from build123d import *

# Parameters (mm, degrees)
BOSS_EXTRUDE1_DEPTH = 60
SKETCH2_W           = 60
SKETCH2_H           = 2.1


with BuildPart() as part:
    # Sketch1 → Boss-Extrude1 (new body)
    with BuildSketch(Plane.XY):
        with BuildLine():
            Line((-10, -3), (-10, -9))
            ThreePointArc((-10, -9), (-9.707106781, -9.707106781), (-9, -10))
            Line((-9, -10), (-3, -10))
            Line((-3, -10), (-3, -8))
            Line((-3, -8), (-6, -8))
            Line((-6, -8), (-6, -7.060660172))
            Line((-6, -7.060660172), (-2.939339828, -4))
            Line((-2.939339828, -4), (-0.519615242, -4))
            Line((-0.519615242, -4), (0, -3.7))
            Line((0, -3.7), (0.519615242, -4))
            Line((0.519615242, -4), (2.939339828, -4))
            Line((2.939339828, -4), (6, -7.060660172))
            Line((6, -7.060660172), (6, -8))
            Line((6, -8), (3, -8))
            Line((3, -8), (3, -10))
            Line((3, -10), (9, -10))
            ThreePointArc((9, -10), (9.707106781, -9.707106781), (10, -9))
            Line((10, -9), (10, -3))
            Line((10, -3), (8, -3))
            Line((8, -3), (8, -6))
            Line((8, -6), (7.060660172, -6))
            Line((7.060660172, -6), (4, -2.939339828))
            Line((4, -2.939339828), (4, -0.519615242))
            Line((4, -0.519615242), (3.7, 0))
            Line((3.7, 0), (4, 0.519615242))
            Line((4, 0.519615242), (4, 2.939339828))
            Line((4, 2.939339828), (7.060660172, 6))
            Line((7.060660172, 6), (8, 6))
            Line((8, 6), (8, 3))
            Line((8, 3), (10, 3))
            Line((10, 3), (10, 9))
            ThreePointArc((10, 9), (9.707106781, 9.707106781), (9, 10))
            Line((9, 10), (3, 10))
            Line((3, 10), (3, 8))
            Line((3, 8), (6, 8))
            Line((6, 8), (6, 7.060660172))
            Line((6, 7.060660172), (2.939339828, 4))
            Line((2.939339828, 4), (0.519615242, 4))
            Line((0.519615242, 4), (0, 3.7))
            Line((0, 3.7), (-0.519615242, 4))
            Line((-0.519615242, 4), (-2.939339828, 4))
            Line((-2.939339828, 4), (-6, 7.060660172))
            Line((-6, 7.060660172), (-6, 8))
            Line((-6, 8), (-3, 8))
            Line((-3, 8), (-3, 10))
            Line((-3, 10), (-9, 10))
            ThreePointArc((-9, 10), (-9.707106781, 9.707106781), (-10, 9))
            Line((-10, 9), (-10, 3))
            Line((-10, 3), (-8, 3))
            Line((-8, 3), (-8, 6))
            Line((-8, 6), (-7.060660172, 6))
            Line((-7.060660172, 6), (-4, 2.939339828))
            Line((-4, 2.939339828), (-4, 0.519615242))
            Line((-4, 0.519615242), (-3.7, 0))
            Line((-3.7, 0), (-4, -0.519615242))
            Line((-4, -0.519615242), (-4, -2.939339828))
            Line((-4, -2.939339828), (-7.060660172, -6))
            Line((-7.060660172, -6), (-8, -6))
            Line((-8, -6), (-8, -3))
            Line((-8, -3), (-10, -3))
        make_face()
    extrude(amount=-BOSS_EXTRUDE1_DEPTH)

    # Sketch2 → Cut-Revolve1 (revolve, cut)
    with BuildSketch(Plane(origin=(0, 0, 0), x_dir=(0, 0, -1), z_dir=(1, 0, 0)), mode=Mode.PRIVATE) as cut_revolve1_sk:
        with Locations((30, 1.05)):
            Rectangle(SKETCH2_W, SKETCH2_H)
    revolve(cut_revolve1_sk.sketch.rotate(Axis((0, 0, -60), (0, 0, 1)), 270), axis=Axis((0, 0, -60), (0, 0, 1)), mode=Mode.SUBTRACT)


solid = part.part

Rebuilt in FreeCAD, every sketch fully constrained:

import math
import FreeCAD as App
import Part
import Sketcher

V = App.Vector
Q = App.Units.Quantity

doc = App.newDocument("Part")
body = doc.addObject("PartDesign::Body", "Body")

# Sketch on XY plane
sketch1 = body.newObject("Sketcher::SketchObject", "Sketch")
sketch1.AttachmentSupport = (doc.getObject("XY_Plane"), [""])
sketch1.MapMode = "FlatFace"
sketch1.addGeometry(Part.LineSegment(V(-10, -3, 0), V(-10, -9, 0)), False)
sketch1.addGeometry(Part.ArcOfCircle(Part.Circle(V(-9, -9, 0), V(0, 0, 1), 1), math.radians(-180), math.radians(-90)), False)
sketch1.addGeometry(Part.LineSegment(V(-9, -10, 0), V(-3, -10, 0)), False)
sketch1.addGeometry(Part.LineSegment(V(-3, -10, 0), V(-3, -8, 0)), False)
sketch1.addGeometry(Part.LineSegment(V(-3, -8, 0), V(-6, -8, 0)), False)
sketch1.addGeometry(Part.LineSegment(V(-6, -8, 0), V(-6, -7.1, 0)), False)
sketch1.addGeometry(Part.LineSegment(V(-6, -7.1, 0), V(-2.9, -4, 0)), False)
sketch1.addGeometry(Part.LineSegment(V(-2.9, -4, 0), V(-0.5, -4, 0)), False)
sketch1.addGeometry(Part.LineSegment(V(-0.5, -4, 0), V(0, -3.7, 0)), False)
sketch1.addGeometry(Part.LineSegment(V(0, -3.7, 0), V(0.5, -4, 0)), False)
sketch1.addGeometry(Part.LineSegment(V(0.5, -4, 0), V(2.9, -4, 0)), False)
sketch1.addGeometry(Part.LineSegment(V(2.9, -4, 0), V(6, -7.1, 0)), False)
sketch1.addGeometry(Part.LineSegment(V(6, -7.1, 0), V(6, -8, 0)), False)
sketch1.addGeometry(Part.LineSegment(V(6, -8, 0), V(3, -8, 0)), False)
sketch1.addGeometry(Part.LineSegment(V(3, -8, 0), V(3, -10, 0)), False)
sketch1.addGeometry(Part.LineSegment(V(3, -10, 0), V(9, -10, 0)), False)
sketch1.addGeometry(Part.ArcOfCircle(Part.Circle(V(9, -9, 0), V(0, 0, 1), 1), math.radians(-90), math.radians(0)), False)
sketch1.addGeometry(Part.LineSegment(V(10, -9, 0), V(10, -3, 0)), False)
sketch1.addGeometry(Part.LineSegment(V(10, -3, 0), V(8, -3, 0)), False)
sketch1.addGeometry(Part.LineSegment(V(8, -3, 0), V(8, -6, 0)), False)
sketch1.addGeometry(Part.LineSegment(V(8, -6, 0), V(7.1, -6, 0)), False)
sketch1.addGeometry(Part.LineSegment(V(7.1, -6, 0), V(4, -2.9, 0)), False)
sketch1.addGeometry(Part.LineSegment(V(4, -2.9, 0), V(4, -0.5, 0)), False)
sketch1.addGeometry(Part.LineSegment(V(4, -0.5, 0), V(3.7, 0, 0)), False)
sketch1.addGeometry(Part.LineSegment(V(3.7, 0, 0), V(4, 0.5, 0)), False)
sketch1.addGeometry(Part.LineSegment(V(4, 0.5, 0), V(4, 2.9, 0)), False)
sketch1.addGeometry(Part.LineSegment(V(4, 2.9, 0), V(7.1, 6, 0)), False)
sketch1.addGeometry(Part.LineSegment(V(7.1, 6, 0), V(8, 6, 0)), False)
sketch1.addGeometry(Part.LineSegment(V(8, 6, 0), V(8, 3, 0)), False)
sketch1.addGeometry(Part.LineSegment(V(8, 3, 0), V(10, 3, 0)), False)
sketch1.addGeometry(Part.LineSegment(V(10, 3, 0), V(10, 9, 0)), False)
sketch1.addGeometry(Part.ArcOfCircle(Part.Circle(V(9, 9, 0), V(0, 0, 1), 1), math.radians(0), math.radians(90)), False)
sketch1.addGeometry(Part.LineSegment(V(9, 10, 0), V(3, 10, 0)), False)
sketch1.addGeometry(Part.LineSegment(V(3, 10, 0), V(3, 8, 0)), False)
sketch1.addGeometry(Part.LineSegment(V(3, 8, 0), V(6, 8, 0)), False)
sketch1.addGeometry(Part.LineSegment(V(6, 8, 0), V(6, 7.1, 0)), False)
sketch1.addGeometry(Part.LineSegment(V(6, 7.1, 0), V(2.9, 4, 0)), False)
sketch1.addGeometry(Part.LineSegment(V(2.9, 4, 0), V(0.5, 4, 0)), False)
sketch1.addGeometry(Part.LineSegment(V(0.5, 4, 0), V(0, 3.7, 0)), False)
sketch1.addGeometry(Part.LineSegment(V(0, 3.7, 0), V(-0.5, 4, 0)), False)
sketch1.addGeometry(Part.LineSegment(V(-0.5, 4, 0), V(-2.9, 4, 0)), False)
sketch1.addGeometry(Part.LineSegment(V(-2.9, 4, 0), V(-6, 7.1, 0)), False)
sketch1.addGeometry(Part.LineSegment(V(-6, 7.1, 0), V(-6, 8, 0)), False)
sketch1.addGeometry(Part.LineSegment(V(-6, 8, 0), V(-3, 8, 0)), False)
sketch1.addGeometry(Part.LineSegment(V(-3, 8, 0), V(-3, 10, 0)), False)
sketch1.addGeometry(Part.LineSegment(V(-3, 10, 0), V(-9, 10, 0)), False)
sketch1.addGeometry(Part.ArcOfCircle(Part.Circle(V(-9, 9, 0), V(0, 0, 1), 1), math.radians(90), math.radians(180)), False)
sketch1.addGeometry(Part.LineSegment(V(-10, 9, 0), V(-10, 3, 0)), False)
sketch1.addGeometry(Part.LineSegment(V(-10, 3, 0), V(-8, 3, 0)), False)
sketch1.addGeometry(Part.LineSegment(V(-8, 3, 0), V(-8, 6, 0)), False)
sketch1.addGeometry(Part.LineSegment(V(-8, 6, 0), V(-7.1, 6, 0)), False)
sketch1.addGeometry(Part.LineSegment(V(-7.1, 6, 0), V(-4, 2.9, 0)), False)
sketch1.addGeometry(Part.LineSegment(V(-4, 2.9, 0), V(-4, 0.5, 0)), False)
sketch1.addGeometry(Part.LineSegment(V(-4, 0.5, 0), V(-3.7, 0, 0)), False)
sketch1.addGeometry(Part.LineSegment(V(-3.7, 0, 0), V(-4, -0.5, 0)), False)
sketch1.addGeometry(Part.LineSegment(V(-4, -0.5, 0), V(-4, -2.9, 0)), False)
sketch1.addGeometry(Part.LineSegment(V(-4, -2.9, 0), V(-7.1, -6, 0)), False)
sketch1.addGeometry(Part.LineSegment(V(-7.1, -6, 0), V(-8, -6, 0)), False)
sketch1.addGeometry(Part.LineSegment(V(-8, -6, 0), V(-8, -3, 0)), False)
sketch1.addGeometry(Part.LineSegment(V(-8, -3, 0), V(-10, -3, 0)), False)
sketch1.addConstraint(Sketcher.Constraint("Tangent", 0, 2, 1, 1))
sketch1.addConstraint(Sketcher.Constraint("Tangent", 1, 2, 2, 1))
sketch1.addConstraint(Sketcher.Constraint("Coincident", 2, 2, 3, 1))
sketch1.addConstraint(Sketcher.Constraint("Coincident", 3, 2, 4, 1))
sketch1.addConstraint(Sketcher.Constraint("Coincident", 4, 2, 5, 1))
sketch1.addConstraint(Sketcher.Constraint("Coincident", 5, 2, 6, 1))
sketch1.addConstraint(Sketcher.Constraint("Coincident", 6, 2, 7, 1))
sketch1.addConstraint(Sketcher.Constraint("Coincident", 7, 2, 8, 1))
sketch1.addConstraint(Sketcher.Constraint("Coincident", 8, 2, 9, 1))
sketch1.addConstraint(Sketcher.Constraint("Coincident", 9, 2, 10, 1))
sketch1.addConstraint(Sketcher.Constraint("Coincident", 10, 2, 11, 1))
sketch1.addConstraint(Sketcher.Constraint("Coincident", 11, 2, 12, 1))
sketch1.addConstraint(Sketcher.Constraint("Coincident", 12, 2, 13, 1))
sketch1.addConstraint(Sketcher.Constraint("Coincident", 13, 2, 14, 1))
sketch1.addConstraint(Sketcher.Constraint("Coincident", 14, 2, 15, 1))
sketch1.addConstraint(Sketcher.Constraint("Tangent", 15, 2, 16, 1))
sketch1.addConstraint(Sketcher.Constraint("Tangent", 16, 2, 17, 1))
sketch1.addConstraint(Sketcher.Constraint("Coincident", 17, 2, 18, 1))
sketch1.addConstraint(Sketcher.Constraint("Coincident", 18, 2, 19, 1))
sketch1.addConstraint(Sketcher.Constraint("Coincident", 19, 2, 20, 1))
sketch1.addConstraint(Sketcher.Constraint("Coincident", 20, 2, 21, 1))
sketch1.addConstraint(Sketcher.Constraint("Coincident", 21, 2, 22, 1))
sketch1.addConstraint(Sketcher.Constraint("Coincident", 22, 2, 23, 1))
sketch1.addConstraint(Sketcher.Constraint("Coincident", 23, 2, 24, 1))
sketch1.addConstraint(Sketcher.Constraint("Coincident", 24, 2, 25, 1))
sketch1.addConstraint(Sketcher.Constraint("Coincident", 25, 2, 26, 1))
sketch1.addConstraint(Sketcher.Constraint("Coincident", 26, 2, 27, 1))
sketch1.addConstraint(Sketcher.Constraint("Coincident", 27, 2, 28, 1))
sketch1.addConstraint(Sketcher.Constraint("Coincident", 28, 2, 29, 1))
sketch1.addConstraint(Sketcher.Constraint("Coincident", 29, 2, 30, 1))
sketch1.addConstraint(Sketcher.Constraint("Tangent", 30, 2, 31, 1))
sketch1.addConstraint(Sketcher.Constraint("Tangent", 31, 2, 32, 1))
sketch1.addConstraint(Sketcher.Constraint("Coincident", 32, 2, 33, 1))
sketch1.addConstraint(Sketcher.Constraint("Coincident", 33, 2, 34, 1))
sketch1.addConstraint(Sketcher.Constraint("Coincident", 34, 2, 35, 1))
sketch1.addConstraint(Sketcher.Constraint("Coincident", 35, 2, 36, 1))
sketch1.addConstraint(Sketcher.Constraint("Coincident", 36, 2, 37, 1))
sketch1.addConstraint(Sketcher.Constraint("Coincident", 37, 2, 38, 1))
sketch1.addConstraint(Sketcher.Constraint("Coincident", 38, 2, 39, 1))
sketch1.addConstraint(Sketcher.Constraint("Coincident", 39, 2, 40, 1))
sketch1.addConstraint(Sketcher.Constraint("Coincident", 40, 2, 41, 1))
sketch1.addConstraint(Sketcher.Constraint("Coincident", 41, 2, 42, 1))
sketch1.addConstraint(Sketcher.Constraint("Coincident", 42, 2, 43, 1))
sketch1.addConstraint(Sketcher.Constraint("Coincident", 43, 2, 44, 1))
sketch1.addConstraint(Sketcher.Constraint("Coincident", 44, 2, 45, 1))
sketch1.addConstraint(Sketcher.Constraint("Tangent", 45, 2, 46, 1))
sketch1.addConstraint(Sketcher.Constraint("Tangent", 46, 2, 47, 1))
sketch1.addConstraint(Sketcher.Constraint("Coincident", 47, 2, 48, 1))
sketch1.addConstraint(Sketcher.Constraint("Coincident", 48, 2, 49, 1))
sketch1.addConstraint(Sketcher.Constraint("Coincident", 49, 2, 50, 1))
sketch1.addConstraint(Sketcher.Constraint("Coincident", 50, 2, 51, 1))
sketch1.addConstraint(Sketcher.Constraint("Coincident", 51, 2, 52, 1))
sketch1.addConstraint(Sketcher.Constraint("Coincident", 52, 2, 53, 1))
sketch1.addConstraint(Sketcher.Constraint("Coincident", 53, 2, 54, 1))
sketch1.addConstraint(Sketcher.Constraint("Coincident", 54, 2, 55, 1))
sketch1.addConstraint(Sketcher.Constraint("Coincident", 55, 2, 56, 1))
sketch1.addConstraint(Sketcher.Constraint("Coincident", 56, 2, 57, 1))
sketch1.addConstraint(Sketcher.Constraint("Coincident", 57, 2, 58, 1))
sketch1.addConstraint(Sketcher.Constraint("Coincident", 58, 2, 59, 1))
sketch1.addConstraint(Sketcher.Constraint("Coincident", 59, 2, 0, 1))
sketch1.addConstraint(Sketcher.Constraint("Vertical", 0))
sketch1.addConstraint(Sketcher.Constraint("Horizontal", 2))
sketch1.addConstraint(Sketcher.Constraint("Vertical", 3))
sketch1.addConstraint(Sketcher.Constraint("Horizontal", 4))
sketch1.addConstraint(Sketcher.Constraint("Vertical", 5))
sketch1.addConstraint(Sketcher.Constraint("Horizontal", 7))
sketch1.addConstraint(Sketcher.Constraint("Horizontal", 10))
sketch1.addConstraint(Sketcher.Constraint("Vertical", 12))
sketch1.addConstraint(Sketcher.Constraint("Horizontal", 13))
sketch1.addConstraint(Sketcher.Constraint("Vertical", 14))
sketch1.addConstraint(Sketcher.Constraint("Horizontal", 15))
sketch1.addConstraint(Sketcher.Constraint("Vertical", 17))
sketch1.addConstraint(Sketcher.Constraint("Horizontal", 18))
sketch1.addConstraint(Sketcher.Constraint("Vertical", 19))
sketch1.addConstraint(Sketcher.Constraint("Horizontal", 20))
sketch1.addConstraint(Sketcher.Constraint("Vertical", 22))
sketch1.addConstraint(Sketcher.Constraint("Vertical", 25))
sketch1.addConstraint(Sketcher.Constraint("Horizontal", 27))
sketch1.addConstraint(Sketcher.Constraint("Vertical", 28))
sketch1.addConstraint(Sketcher.Constraint("Horizontal", 29))
sketch1.addConstraint(Sketcher.Constraint("Vertical", 30))
sketch1.addConstraint(Sketcher.Constraint("Horizontal", 32))
sketch1.addConstraint(Sketcher.Constraint("Vertical", 33))
sketch1.addConstraint(Sketcher.Constraint("Horizontal", 34))
sketch1.addConstraint(Sketcher.Constraint("Vertical", 35))
sketch1.addConstraint(Sketcher.Constraint("Horizontal", 37))
sketch1.addConstraint(Sketcher.Constraint("Horizontal", 40))
sketch1.addConstraint(Sketcher.Constraint("Vertical", 42))
sketch1.addConstraint(Sketcher.Constraint("Horizontal", 43))
sketch1.addConstraint(Sketcher.Constraint("Vertical", 44))
sketch1.addConstraint(Sketcher.Constraint("Horizontal", 45))
sketch1.addConstraint(Sketcher.Constraint("Vertical", 47))
sketch1.addConstraint(Sketcher.Constraint("Horizontal", 48))
sketch1.addConstraint(Sketcher.Constraint("Vertical", 49))
sketch1.addConstraint(Sketcher.Constraint("Horizontal", 50))
sketch1.addConstraint(Sketcher.Constraint("Vertical", 52))
sketch1.addConstraint(Sketcher.Constraint("Vertical", 55))
sketch1.addConstraint(Sketcher.Constraint("Horizontal", 57))
sketch1.addConstraint(Sketcher.Constraint("Vertical", 58))
sketch1.addConstraint(Sketcher.Constraint("Horizontal", 59))
sketch1.addConstraint(Sketcher.Constraint("Equal", 1, 16))
sketch1.addConstraint(Sketcher.Constraint("Equal", 16, 31))
sketch1.addConstraint(Sketcher.Constraint("Equal", 31, 46))
sketch1.addConstraint(Sketcher.Constraint("Symmetric", 1, 3, 31, 3, -1, 1))
sketch1.addConstraint(Sketcher.Constraint("Symmetric", 16, 3, 46, 3, -1, 1))
sketch1.addConstraint(Sketcher.Constraint("Symmetric", 3, 2, 33, 2, -1, 1))
sketch1.addConstraint(Sketcher.Constraint("Symmetric", 5, 2, 35, 2, -1, 1))
sketch1.addConstraint(Sketcher.Constraint("Symmetric", 6, 2, 36, 2, -1, 1))
sketch1.addConstraint(Sketcher.Constraint("Symmetric", 8, 2, 38, 2, -1, 1))
sketch1.addConstraint(Sketcher.Constraint("Symmetric", 9, 2, 39, 2, -1, 1))
sketch1.addConstraint(Sketcher.Constraint("Symmetric", 11, 2, 41, 2, -1, 1))
sketch1.addConstraint(Sketcher.Constraint("Symmetric", 13, 2, 43, 2, -1, 1))
sketch1.addConstraint(Sketcher.Constraint("Symmetric", 18, 2, 48, 2, -1, 1))
sketch1.addConstraint(Sketcher.Constraint("Symmetric", 20, 2, 50, 2, -1, 1))
sketch1.addConstraint(Sketcher.Constraint("Symmetric", 21, 2, 51, 2, -1, 1))
sketch1.addConstraint(Sketcher.Constraint("Symmetric", 23, 2, 53, 2, -1, 1))
sketch1.addConstraint(Sketcher.Constraint("Symmetric", 24, 2, 54, 2, -1, 1))
sketch1.addConstraint(Sketcher.Constraint("Symmetric", 26, 2, 56, 2, -1, 1))
sketch1.addConstraint(Sketcher.Constraint("Symmetric", 28, 2, 58, 2, -1, 1))
sketch1.addConstraint(Sketcher.Constraint("Symmetric", 1, 3, 16, 3, -2))
sketch1.addConstraint(Sketcher.Constraint("Symmetric", 7, 2, 9, 2, -2))
sketch1.addConstraint(Sketcher.Constraint("Symmetric", 5, 2, 11, 2, -2))
sketch1.addConstraint(Sketcher.Constraint("Symmetric", 3, 2, 13, 2, -2))
sketch1.addConstraint(Sketcher.Constraint("Symmetric", 28, 2, 48, 2, -2))
sketch1.addConstraint(Sketcher.Constraint("Symmetric", 26, 2, 50, 2, -2))
sketch1.addConstraint(Sketcher.Constraint("Symmetric", 25, 2, 51, 2, -2))
sketch1.addConstraint(Sketcher.Constraint("PointOnObject", 8, 2, -2))
sketch1.addConstraint(Sketcher.Constraint("PointOnObject", 23, 2, -1))
sketch1.addConstraint(Sketcher.Constraint("Perpendicular", 6, 11))
sketch1.addConstraint(Sketcher.Constraint("Parallel", 11, 21))
sketch1.addConstraint(Sketcher.Constraint("Perpendicular", 8, 23))
sketch1.addConstraint(Sketcher.Constraint("Perpendicular", 9, 24))
sketch1.addConstraint(Sketcher.Constraint("Perpendicular", 21, 26))
sketch1.addConstraint(Sketcher.Constraint("Perpendicular", 23, 38))
sketch1.addConstraint(Sketcher.Constraint("Perpendicular", 36, 41))
sketch1.addConstraint(Sketcher.Constraint("Perpendicular", 38, 53))
sketch1.addConstraint(Sketcher.Constraint("Perpendicular", 51, 56))
sketch1.addConstraint(Sketcher.Constraint("Equal", 45, 0))
sketch1.addConstraint(Sketcher.Constraint("Equal", 59, 3))
sketch1.addConstraint(Sketcher.Constraint("Equal", 57, 5))
sketch1.addConstraint(Sketcher.Constraint("Equal", 43, 19))
sketch1.addConstraint(Sketcher.Constraint("Equal", 40, 22))
sketch1.addConstraint(Sketcher.Constraint("Equal", 11, 21))
sketch1.addConstraint(Sketcher.Constraint("Equal", 9, 23))
sketch1.addConstraint(Sketcher.Constraint("Radius", 1, Q("1 mm")))
sketch1.addConstraint(Sketcher.Constraint("DistanceX", 2, 1, 2, 2, Q("6 mm")))
sketch1.addConstraint(Sketcher.Constraint("DistanceX", 4, 2, 4, 1, Q("3 mm")))
sketch1.addConstraint(Sketcher.Constraint("DistanceX", 18, 2, 18, 1, Q("2 mm")))
sketch1.addConstraint(Sketcher.Constraint("Angle", 8, Q("30 deg")))
sketch1.addConstraint(Sketcher.Constraint("DistanceX", 1, 3, -1, 1, Q("9 mm")))
sketch1.addConstraint(Sketcher.Constraint("DistanceY", 6, 2, -1, 1, Q("4 mm")))
sketch1.addConstraint(Sketcher.Constraint("Distance", 8, Q("0.6 mm")))
sketch1.addConstraint(Sketcher.Constraint("DistanceX", 20, 2, 20, 1, Q("0.93934 mm")))
pad1 = body.newObject("PartDesign::Pad", "Pad")
pad1.Profile = sketch1
pad1.Length = 60
pad1.Reversed = True

# Sketch on YZ plane
sketch2 = body.newObject("Sketcher::SketchObject", "Sketch001")
sketch2.AttachmentSupport = (doc.getObject("YZ_Plane"), [""])
sketch2.MapMode = "FlatFace"
sketch2.addGeometry(Part.LineSegment(V(2.1, 0, 0), V(0, 0, 0)), False)
sketch2.addGeometry(Part.LineSegment(V(0, 0, 0), V(0, -60, 0)), False)
sketch2.addGeometry(Part.LineSegment(V(0, -60, 0), V(2.1, -60, 0)), False)
sketch2.addGeometry(Part.LineSegment(V(2.1, -60, 0), V(2.1, 0, 0)), False)
sketch2.addConstraint(Sketcher.Constraint("Coincident", 0, 2, 1, 1))
sketch2.addConstraint(Sketcher.Constraint("Coincident", 1, 2, 2, 1))
sketch2.addConstraint(Sketcher.Constraint("Coincident", 2, 2, 3, 1))
sketch2.addConstraint(Sketcher.Constraint("Coincident", 3, 2, 0, 1))
sketch2.addConstraint(Sketcher.Constraint("Horizontal", 0))
sketch2.addConstraint(Sketcher.Constraint("Vertical", 1))
sketch2.addConstraint(Sketcher.Constraint("Horizontal", 2))
sketch2.addConstraint(Sketcher.Constraint("Vertical", 3))
sketch2.addConstraint(Sketcher.Constraint("Coincident", 0, 2, -1, 1))
sketch2.addConstraint(Sketcher.Constraint("DistanceY", 1, 2, 1, 1, Q("60 mm")))
sketch2.addConstraint(Sketcher.Constraint("DistanceX", 0, 2, 0, 1, Q("2.1 mm")))
groove = body.newObject("PartDesign::Groove", "Groove")
groove.Profile = sketch2
groove.ReferenceAxis = (sketch2, ["V_Axis"])
groove.Angle = 360

doc.recompute()
